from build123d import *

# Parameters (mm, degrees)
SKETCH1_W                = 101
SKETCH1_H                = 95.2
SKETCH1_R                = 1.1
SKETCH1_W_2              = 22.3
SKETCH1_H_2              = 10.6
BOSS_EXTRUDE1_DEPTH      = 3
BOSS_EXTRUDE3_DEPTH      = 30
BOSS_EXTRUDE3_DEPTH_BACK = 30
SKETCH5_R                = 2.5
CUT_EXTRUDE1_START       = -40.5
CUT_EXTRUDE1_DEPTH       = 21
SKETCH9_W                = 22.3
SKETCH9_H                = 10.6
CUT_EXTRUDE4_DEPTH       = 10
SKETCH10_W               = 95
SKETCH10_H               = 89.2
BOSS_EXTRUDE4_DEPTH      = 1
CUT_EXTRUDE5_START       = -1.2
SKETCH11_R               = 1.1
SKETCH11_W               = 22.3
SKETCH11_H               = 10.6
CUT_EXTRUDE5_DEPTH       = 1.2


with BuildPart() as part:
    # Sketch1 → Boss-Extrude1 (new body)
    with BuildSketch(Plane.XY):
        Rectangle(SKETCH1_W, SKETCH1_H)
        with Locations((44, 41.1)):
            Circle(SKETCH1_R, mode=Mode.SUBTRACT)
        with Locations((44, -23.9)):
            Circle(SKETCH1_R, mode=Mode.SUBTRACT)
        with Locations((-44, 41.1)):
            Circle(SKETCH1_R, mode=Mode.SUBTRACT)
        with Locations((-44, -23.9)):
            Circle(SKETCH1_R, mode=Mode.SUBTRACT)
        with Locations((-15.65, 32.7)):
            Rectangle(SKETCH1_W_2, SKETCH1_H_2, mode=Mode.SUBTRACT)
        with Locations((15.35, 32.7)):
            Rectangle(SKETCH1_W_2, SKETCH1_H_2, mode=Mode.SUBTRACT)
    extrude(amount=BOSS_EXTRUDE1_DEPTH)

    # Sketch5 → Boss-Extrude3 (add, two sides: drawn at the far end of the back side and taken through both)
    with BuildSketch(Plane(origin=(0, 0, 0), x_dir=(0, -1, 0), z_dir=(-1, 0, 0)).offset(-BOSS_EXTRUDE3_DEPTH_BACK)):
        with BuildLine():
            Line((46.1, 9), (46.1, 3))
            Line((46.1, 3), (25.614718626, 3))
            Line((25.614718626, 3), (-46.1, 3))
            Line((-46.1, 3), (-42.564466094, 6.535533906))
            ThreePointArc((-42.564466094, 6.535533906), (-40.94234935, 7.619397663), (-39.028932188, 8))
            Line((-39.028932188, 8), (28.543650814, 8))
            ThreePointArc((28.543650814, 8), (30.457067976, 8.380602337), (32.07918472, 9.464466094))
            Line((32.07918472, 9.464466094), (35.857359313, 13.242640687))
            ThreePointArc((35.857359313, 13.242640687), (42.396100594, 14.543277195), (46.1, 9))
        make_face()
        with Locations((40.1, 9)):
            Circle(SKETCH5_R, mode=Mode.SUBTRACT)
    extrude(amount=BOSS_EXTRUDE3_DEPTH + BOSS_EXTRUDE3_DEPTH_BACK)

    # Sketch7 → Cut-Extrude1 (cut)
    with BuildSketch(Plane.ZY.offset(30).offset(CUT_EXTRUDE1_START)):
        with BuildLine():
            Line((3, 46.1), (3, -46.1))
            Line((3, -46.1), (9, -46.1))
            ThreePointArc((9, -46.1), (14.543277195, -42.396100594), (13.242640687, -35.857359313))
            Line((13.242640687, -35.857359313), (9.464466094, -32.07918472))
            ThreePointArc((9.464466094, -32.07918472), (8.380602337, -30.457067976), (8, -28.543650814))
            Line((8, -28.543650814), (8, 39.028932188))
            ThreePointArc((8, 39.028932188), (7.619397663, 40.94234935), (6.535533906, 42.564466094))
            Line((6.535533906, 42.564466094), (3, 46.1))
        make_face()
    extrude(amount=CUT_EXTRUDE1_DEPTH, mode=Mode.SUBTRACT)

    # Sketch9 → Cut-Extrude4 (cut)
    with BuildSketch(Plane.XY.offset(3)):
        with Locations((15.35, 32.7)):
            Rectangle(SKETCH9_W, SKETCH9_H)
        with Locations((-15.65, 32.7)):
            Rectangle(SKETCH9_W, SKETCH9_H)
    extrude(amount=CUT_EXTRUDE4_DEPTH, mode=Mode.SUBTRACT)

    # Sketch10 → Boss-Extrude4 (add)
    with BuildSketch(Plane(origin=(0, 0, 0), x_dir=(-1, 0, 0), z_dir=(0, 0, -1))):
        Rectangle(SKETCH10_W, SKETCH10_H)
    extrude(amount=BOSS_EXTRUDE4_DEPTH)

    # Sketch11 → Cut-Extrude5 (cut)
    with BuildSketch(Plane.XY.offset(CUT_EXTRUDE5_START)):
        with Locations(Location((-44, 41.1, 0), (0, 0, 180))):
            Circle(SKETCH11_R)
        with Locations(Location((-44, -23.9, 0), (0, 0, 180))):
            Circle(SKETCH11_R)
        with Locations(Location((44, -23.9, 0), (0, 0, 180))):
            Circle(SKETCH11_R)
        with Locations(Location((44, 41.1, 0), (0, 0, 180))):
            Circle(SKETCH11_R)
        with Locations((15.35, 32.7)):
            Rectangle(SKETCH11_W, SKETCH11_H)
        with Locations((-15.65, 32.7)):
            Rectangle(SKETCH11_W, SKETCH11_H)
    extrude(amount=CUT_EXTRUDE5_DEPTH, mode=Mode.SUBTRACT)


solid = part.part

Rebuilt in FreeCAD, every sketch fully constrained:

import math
import FreeCAD as App
import Part
import Sketcher

V = App.Vector
Q = App.Units.Quantity

doc = App.newDocument("Part")
body = doc.addObject("PartDesign::Body", "Body")

sketch1 = body.newObject("Sketcher::SketchObject", "Sketch")
sketch1.AttachmentSupport = (doc.getObject("XY_Plane"), [""])
sketch1.MapMode = "FlatFace"
sketch1.addGeometry([
    Part.LineSegment(V(-50.5, 47.6, 0), V(-50.5, -47.6, 0)),
    Part.LineSegment(V(-50.5, -47.6, 0), V(50.5, -47.6, 0)),
    Part.LineSegment(V(50.5, -47.6, 0), V(50.5, 47.6, 0)),
    Part.LineSegment(V(50.5, 47.6, 0), V(-50.5, 47.6, 0)),
    Part.Circle(V(-44, -23.9, 0), V(0, 0, 1), 1.1),
    Part.Circle(V(44, -23.9, 0), V(0, 0, 1), 1.1),
    Part.Circle(V(-44, 41.1, 0), V(0, 0, 1), 1.1),
    Part.LineSegment(V(-4.5, 27.4, 0), V(-26.8, 27.4, 0)),
    Part.LineSegment(V(-26.8, 27.4, 0), V(-26.8, 38, 0)),
    Part.LineSegment(V(-26.8, 38, 0), V(-4.5, 38, 0)),
    Part.LineSegment(V(-4.5, 38, 0), V(-4.5, 27.4, 0)),
    Part.LineSegment(V(26.5, 27.4, 0), V(4.2, 27.4, 0)),
    Part.LineSegment(V(4.2, 27.4, 0), V(4.2, 38, 0)),
    Part.LineSegment(V(4.2, 38, 0), V(26.5, 38, 0)),
    Part.LineSegment(V(26.5, 38, 0), V(26.5, 27.4, 0)),
    Part.Circle(V(44, 41.1, 0), V(0, 0, 1), 1.1),
], False)
sketch1.addConstraint([
    Sketcher.Constraint("Coincident", 0, 2, 1, 1),
    Sketcher.Constraint("Coincident", 1, 2, 2, 1),
    Sketcher.Constraint("Coincident", 2, 2, 3, 1),
    Sketcher.Constraint("Coincident", 3, 2, 0, 1),
    Sketcher.Constraint("Coincident", 7, 2, 8, 1),
    Sketcher.Constraint("Coincident", 8, 2, 9, 1),
    Sketcher.Constraint("Coincident", 9, 2, 10, 1),
    Sketcher.Constraint("Coincident", 10, 2, 7, 1),
    Sketcher.Constraint("Coincident", 11, 2, 12, 1),
    Sketcher.Constraint("Coincident", 12, 2, 13, 1),
    Sketcher.Constraint("Coincident", 13, 2, 14, 1),
    Sketcher.Constraint("Coincident", 14, 2, 11, 1),
    Sketcher.Constraint("Vertical", 0),
    Sketcher.Constraint("Horizontal", 1),
    Sketcher.Constraint("Vertical", 2),
    Sketcher.Constraint("Horizontal", 3),
    Sketcher.Constraint("Horizontal", 7),
    Sketcher.Constraint("Vertical", 8),
    Sketcher.Constraint("Horizontal", 9),
    Sketcher.Constraint("Vertical", 10),
    Sketcher.Constraint("Horizontal", 11),
    Sketcher.Constraint("Vertical", 12),
    Sketcher.Constraint("Horizontal", 13),
    Sketcher.Constraint("Vertical", 14),
    Sketcher.Constraint("Equal", 4, 5),
    Sketcher.Constraint("Equal", 5, 6),
    Sketcher.Constraint("Equal", 6, 15),
    Sketcher.Constraint("Symmetric", 0, 2, 2, 2, -1, 1),
    Sketcher.Constraint("Symmetric", 4, 3, 5, 3, -2),
    Sketcher.Constraint("Symmetric", 6, 3, 15, 3, -2),
    Sketcher.Constraint("Horizontal", 10, 2, 11, 2),
    Sketcher.Constraint("Horizontal", 9, 2, 12, 2),
    Sketcher.Constraint("Vertical", 4, 3, 6, 3),
    Sketcher.Constraint("Equal", 9, 11),
    Sketcher.Constraint("Diameter", 4, 2.2),
    Sketcher.Constraint("DistanceX", 1, 1, 1, 2, 101.0),
    Sketcher.Constraint("DistanceX", 7, 2, 7, 1, 22.3),
    Sketcher.Constraint("DistanceY", 0, 2, 0, 1, 95.2),
    Sketcher.Constraint("DistanceY", 8, 1, 8, 2, 10.6),
    Sketcher.Constraint("DistanceX", 4, 3, -1, 1, 44.0),
    Sketcher.Constraint("DistanceY", -1, 1, 8, 2, 38.0),
    Sketcher.Constraint("DistanceY", 4, 3, 6, 3, 65.0),
    Sketcher.Constraint("DistanceX", 3, 2, 9, 2, 46.0),
    Sketcher.Constraint("DistanceX", 7, 2, 11, 2, 31.0),
    Sketcher.Constraint("DistanceY", 4, 3, -1, 1, 23.9),
])
pad1 = body.newObject("PartDesign::Pad", "Pad")
pad1.Profile = sketch1
pad1.Length = 3

sketch2 = body.newObject("Sketcher::SketchObject", "Sketch001")
sketch2.AttachmentSupport = (doc.getObject("YZ_Plane"), [""])
sketch2.MapMode = "FlatFace"
sketch2.addGeometry([
    Part.LineSegment(V(-46.1, 3, 0), V(-46.1, 9, 0)),
    Part.ArcOfCircle(Part.Circle(V(-40.1, 9, 0), V(0, 0, 1), 6), math.radians(45), math.radians(180)),
    Part.LineSegment(V(-35.9, 13.2, 0), V(-32.1, 9.5, 0)),
    Part.ArcOfCircle(Part.Circle(V(-28.5, 13, 0), V(0, 0, 1), 5), math.radians(-135), math.radians(-90)),
    Part.LineSegment(V(-28.5, 8, 0), V(39, 8, 0)),
    Part.ArcOfCircle(Part.Circle(V(39, 3, 0), V(0, 0, 1), 5), math.radians(45), math.radians(90)),
    Part.LineSegment(V(42.6, 6.5, 0), V(46.1, 3, 0)),
    Part.LineSegment(V(46.1, 3, 0), V(-46.1, 3, 0)),
    Part.Circle(V(-40.1, 9, 0), V(0, 0, 1), 2.5),
], False)
sketch2.addConstraint([
    Sketcher.Constraint("Tangent", 0, 2, 1, 2),
    Sketcher.Constraint("Tangent", 1, 1, 2, 1),
    Sketcher.Constraint("Tangent", 2, 2, 3, 1),
    Sketcher.Constraint("Tangent", 3, 2, 4, 1),
    Sketcher.Constraint("Tangent", 4, 2, 5, 2),
    Sketcher.Constraint("Tangent", 5, 1, 6, 1),
    Sketcher.Constraint("Coincident", 6, 2, 7, 1),
    Sketcher.Constraint("Coincident", 7, 2, 0, 1),
    Sketcher.Constraint("Vertical", 0),
    Sketcher.Constraint("Horizontal", 4),
    Sketcher.Constraint("Horizontal", 7),
    Sketcher.Constraint("Coincident", 8, 3, 1, 3),
    Sketcher.Constraint("Equal", 3, 5),
    Sketcher.Constraint("Parallel", 2, 6),
    Sketcher.Constraint("Horizontal", 5, 3, 6, 2),
    Sketcher.Constraint("Diameter", 8, 5.0),
    Sketcher.Constraint("Radius", 1, 6.0),
    Sketcher.Constraint("Radius", 3, 5.0),
    Sketcher.Constraint("DistanceY", 0, 1, 0, 2, 6.0),
    Sketcher.Constraint("Angle", 2, Q("-45 deg")),
    Sketcher.Constraint("DistanceX", 7, 2, 7, 1, 92.2),
    Sketcher.Constraint("DistanceY", -1, 1, 1, 3, 9.0),
    Sketcher.Constraint("DistanceX", 1, 3, -1, 1, 40.1),
])
pad2 = body.newObject("PartDesign::Pad", "Pad001")
pad2.Profile = sketch2
pad2.Type = "TwoLengths"
pad2.Length = 30
pad2.Length2 = 30
pad2.Reversed = True

sketch3 = body.newObject("Sketcher::SketchObject", "Sketch002")
sketch3.AttachmentSupport = (doc.getObject("YZ_Plane"), [""])
sketch3.MapMode = "FlatFace"
sketch3.AttachmentOffset = App.Placement(V(0, 0, 10.5), App.Rotation())
sketch3.addGeometry([
    Part.LineSegment(V(46.1, 3, 0), V(-46.1, 3, 0)),
    Part.LineSegment(V(-46.1, 3, 0), V(-46.1, 9, 0)),
    Part.ArcOfCircle(Part.Circle(V(-40.1, 9, 0), V(0, 0, 1), 6), math.radians(45), math.radians(180)),
    Part.LineSegment(V(-35.9, 13.2, 0), V(-32.1, 9.5, 0)),
    Part.ArcOfCircle(Part.Circle(V(-28.5, 13, 0), V(0, 0, 1), 5), math.radians(-135), math.radians(-90)),
    Part.LineSegment(V(-28.5, 8, 0), V(39, 8, 0)),
    Part.ArcOfCircle(Part.Circle(V(39, 3, 0), V(0, 0, 1), 5), math.radians(45), math.radians(90)),
    Part.LineSegment(V(42.6, 6.5, 0), V(46.1, 3, 0)),
], False)
sketch3.addConstraint([
    Sketcher.Constraint("Coincident", 0, 2, 1, 1),
    Sketcher.Constraint("Tangent", 1, 2, 2, 2),
    Sketcher.Constraint("Tangent", 2, 1, 3, 1),
    Sketcher.Constraint("Tangent", 3, 2, 4, 1),
    Sketcher.Constraint("Tangent", 4, 2, 5, 1),
    Sketcher.Constraint("Tangent", 5, 2, 6, 2),
    Sketcher.Constraint("Tangent", 6, 1, 7, 1),
    Sketcher.Constraint("Coincident", 7, 2, 0, 1),
    Sketcher.Constraint("Horizontal", 0),
    Sketcher.Constraint("Vertical", 1),
    Sketcher.Constraint("Horizontal", 5),
    Sketcher.Constraint("Equal", 4, 6),
    Sketcher.Constraint("Parallel", 3, 7),
    Sketcher.Constraint("Horizontal", 6, 3, 0, 2),
    Sketcher.Constraint("Radius", 2, 6.0),
    Sketcher.Constraint("Radius", 4, 5.0),
    Sketcher.Constraint("DistanceY", 1, 1, 1, 2, 6.0),
    Sketcher.Constraint("Angle", 3, Q("-45 deg")),
    Sketcher.Constraint("DistanceX", 0, 2, 0, 1, 92.2),
    Sketcher.Constraint("DistanceY", -1, 1, 2, 3, 9.0),
    Sketcher.Constraint("DistanceX", 2, 3, -1, 1, 40.1),
])
pocket1 = body.newObject("PartDesign::Pocket", "Pocket")
pocket1.Profile = sketch3
pocket1.Length = 21

sketch4 = body.newObject("Sketcher::SketchObject", "Sketch003")
sketch4.AttachmentSupport = (doc.getObject("XY_Plane"), [""])
sketch4.MapMode = "FlatFace"
sketch4.AttachmentOffset = App.Placement(V(0, 0, 3), App.Rotation())
sketch4.addGeometry([
    Part.LineSegment(V(4, 38, 0), V(4, 27, 0)),
    Part.LineSegment(V(4, 27, 0), V(26, 27, 0)),
    Part.LineSegment(V(26, 27, 0), V(26, 38, 0)),
    Part.LineSegment(V(26, 38, 0), V(4, 38, 0)),
    Part.LineSegment(V(-27, 38, 0), V(-27, 27, 0)),
    Part.LineSegment(V(-27, 27, 0), V(-4, 27, 0)),
    Part.LineSegment(V(-4, 27, 0), V(-4, 38, 0)),
    Part.LineSegment(V(-4, 38, 0), V(-27, 38, 0)),
], False)
sketch4.addConstraint([
    Sketcher.Constraint("Coincident", 0, 2, 1, 1),
    Sketcher.Constraint("Coincident", 1, 2, 2, 1),
    Sketcher.Constraint("Coincident", 2, 2, 3, 1),
    Sketcher.Constraint("Coincident", 3, 2, 0, 1),
    Sketcher.Constraint("Coincident", 4, 2, 5, 1),
    Sketcher.Constraint("Coincident", 5, 2, 6, 1),
    Sketcher.Constraint("Coincident", 6, 2, 7, 1),
    Sketcher.Constraint("Coincident", 7, 2, 4, 1),
    Sketcher.Constraint("Vertical", 0),
    Sketcher.Constraint("Horizontal", 1),
    Sketcher.Constraint("Vertical", 2),
    Sketcher.Constraint("Horizontal", 3),
    Sketcher.Constraint("Vertical", 4),
    Sketcher.Constraint("Horizontal", 5),
    Sketcher.Constraint("Vertical", 6),
    Sketcher.Constraint("Horizontal", 7),
    Sketcher.Constraint("Horizontal", 1, 2, 4, 2),
    Sketcher.Constraint("Horizontal", 3, 2, 6, 2),
    Sketcher.Constraint("Equal", 3, 5),
    Sketcher.Constraint("DistanceX", 1, 1, 1, 2, 22.3),
    Sketcher.Constraint("DistanceY", 0, 2, 0, 1, 10.6),
    Sketcher.Constraint("DistanceY", -1, 1, 2, 2, 38.0),
    Sketcher.Constraint("DistanceX", 4, 2, 0, 2, 31.0),
    Sketcher.Constraint("DistanceX", -1, 1, 0, 2, 4.2),
])
pocket2 = body.newObject("PartDesign::Pocket", "Pocket001")
pocket2.Profile = sketch4
pocket2.Length = 10
pocket2.Reversed = True

sketch5 = body.newObject("Sketcher::SketchObject", "Sketch004")
sketch5.AttachmentSupport = (doc.getObject("XY_Plane"), [""])
sketch5.MapMode = "FlatFace"
sketch5.addGeometry([
    Part.LineSegment(V(48, 45, 0), V(48, -45, 0)),
    Part.LineSegment(V(48, -45, 0), V(-48, -45, 0)),
    Part.LineSegment(V(-48, -45, 0), V(-48, 45, 0)),
    Part.LineSegment(V(-48, 45, 0), V(48, 45, 0)),
], False)
sketch5.addConstraint([
    Sketcher.Constraint("Coincident", 0, 2, 1, 1),
    Sketcher.Constraint("Coincident", 1, 2, 2, 1),
    Sketcher.Constraint("Coincident", 2, 2, 3, 1),
    Sketcher.Constraint("Coincident", 3, 2, 0, 1),
    Sketcher.Constraint("Vertical", 0),
    Sketcher.Constraint("Horizontal", 1),
    Sketcher.Constraint("Vertical", 2),
    Sketcher.Constraint("Horizontal", 3),
    Sketcher.Constraint("Symmetric", 0, 2, 2, 2, -1, 1),
    Sketcher.Constraint("DistanceX", 1, 2, 1, 1, 95.0),
    Sketcher.Constraint("DistanceY", 0, 2, 0, 1, 89.2),
])
pad3 = body.newObject("PartDesign::Pad", "Pad002")
pad3.Profile = sketch5
pad3.Length = 1
pad3.Reversed = True

sketch6 = body.newObject("Sketcher::SketchObject", "Sketch005")
sketch6.AttachmentSupport = (doc.getObject("XY_Plane"), [""])
sketch6.MapMode = "FlatFace"
sketch6.AttachmentOffset = App.Placement(V(0, 0, -1.2), App.Rotation())
sketch6.addGeometry([
    Part.Circle(V(-44, 41.1, 0), V(0, 0, 1), 1.1),
    Part.Circle(V(-44, -23.9, 0), V(0, 0, 1), 1.1),
    Part.Circle(V(44, -23.9, 0), V(0, 0, 1), 1.1),
    Part.Circle(V(44, 41.1, 0), V(0, 0, 1), 1.1),
    Part.LineSegment(V(4.2, 38, 0), V(4.2, 27.4, 0)),
    Part.LineSegment(V(4.2, 27.4, 0), V(26.5, 27.4, 0)),
    Part.LineSegment(V(26.5, 27.4, 0), V(26.5, 38, 0)),
    Part.LineSegment(V(26.5, 38, 0), V(4.2, 38, 0)),
    Part.LineSegment(V(-26.8, 38, 0), V(-26.8, 27.4, 0)),
    Part.LineSegment(V(-26.8, 27.4, 0), V(-4.5, 27.4, 0)),
    Part.LineSegment(V(-4.5, 27.4, 0), V(-4.5, 38, 0)),
    Part.LineSegment(V(-4.5, 38, 0), V(-26.8, 38, 0)),
], False)
sketch6.addConstraint([
    Sketcher.Constraint("Coincident", 4, 2, 5, 1),
    Sketcher.Constraint("Coincident", 5, 2, 6, 1),
    Sketcher.Constraint("Coincident", 6, 2, 7, 1),
    Sketcher.Constraint("Coincident", 7, 2, 4, 1),
    Sketcher.Constraint("Coincident", 8, 2, 9, 1),
    Sketcher.Constraint("Coincident", 9, 2, 10, 1),
    Sketcher.Constraint("Coincident", 10, 2, 11, 1),
    Sketcher.Constraint("Coincident", 11, 2, 8, 1),
    Sketcher.Constraint("Vertical", 4),
    Sketcher.Constraint("Horizontal", 5),
    Sketcher.Constraint("Vertical", 6),
    Sketcher.Constraint("Horizontal", 7),
    Sketcher.Constraint("Vertical", 8),
    Sketcher.Constraint("Horizontal", 9),
    Sketcher.Constraint("Vertical", 10),
    Sketcher.Constraint("Horizontal", 11),
    Sketcher.Constraint("Equal", 0, 1),
    Sketcher.Constraint("Equal", 1, 2),
    Sketcher.Constraint("Equal", 2, 3),
    Sketcher.Constraint("Symmetric", 1, 3, 2, 3, -2),
    Sketcher.Constraint("Symmetric", 0, 3, 3, 3, -2),
    Sketcher.Constraint("Horizontal", 5, 2, 8, 2),
    Sketcher.Constraint("Horizontal", 7, 2, 10, 2),
    Sketcher.Constraint("Vertical", 0, 3, 1, 3),
    Sketcher.Constraint("Equal", 7, 9),
    Sketcher.Constraint("Diameter", 0, 2.2),
    Sketcher.Constraint("DistanceX", 5, 1, 5, 2, 22.3),
    Sketcher.Constraint("DistanceY", 4, 2, 4, 1, 10.6),
    Sketcher.Constraint("DistanceX", 0, 3, -1, 1, 44.0),
    Sketcher.Constraint("DistanceY", -1, 1, 6, 2, 38.0),
    Sketcher.Constraint("DistanceY", 1, 3, 0, 3, 65.0),
    Sketcher.Constraint("DistanceX", 8, 2, 4, 2, 31.0),
    Sketcher.Constraint("DistanceY", -1, 1, 0, 3, 41.1),
    Sketcher.Constraint("DistanceX", -1, 1, 4, 2, 4.2),
])
pocket3 = body.newObject("PartDesign::Pocket", "Pocket002")
pocket3.Profile = sketch6
pocket3.Length = 1.2
pocket3.Reversed = True

doc.recompute()
